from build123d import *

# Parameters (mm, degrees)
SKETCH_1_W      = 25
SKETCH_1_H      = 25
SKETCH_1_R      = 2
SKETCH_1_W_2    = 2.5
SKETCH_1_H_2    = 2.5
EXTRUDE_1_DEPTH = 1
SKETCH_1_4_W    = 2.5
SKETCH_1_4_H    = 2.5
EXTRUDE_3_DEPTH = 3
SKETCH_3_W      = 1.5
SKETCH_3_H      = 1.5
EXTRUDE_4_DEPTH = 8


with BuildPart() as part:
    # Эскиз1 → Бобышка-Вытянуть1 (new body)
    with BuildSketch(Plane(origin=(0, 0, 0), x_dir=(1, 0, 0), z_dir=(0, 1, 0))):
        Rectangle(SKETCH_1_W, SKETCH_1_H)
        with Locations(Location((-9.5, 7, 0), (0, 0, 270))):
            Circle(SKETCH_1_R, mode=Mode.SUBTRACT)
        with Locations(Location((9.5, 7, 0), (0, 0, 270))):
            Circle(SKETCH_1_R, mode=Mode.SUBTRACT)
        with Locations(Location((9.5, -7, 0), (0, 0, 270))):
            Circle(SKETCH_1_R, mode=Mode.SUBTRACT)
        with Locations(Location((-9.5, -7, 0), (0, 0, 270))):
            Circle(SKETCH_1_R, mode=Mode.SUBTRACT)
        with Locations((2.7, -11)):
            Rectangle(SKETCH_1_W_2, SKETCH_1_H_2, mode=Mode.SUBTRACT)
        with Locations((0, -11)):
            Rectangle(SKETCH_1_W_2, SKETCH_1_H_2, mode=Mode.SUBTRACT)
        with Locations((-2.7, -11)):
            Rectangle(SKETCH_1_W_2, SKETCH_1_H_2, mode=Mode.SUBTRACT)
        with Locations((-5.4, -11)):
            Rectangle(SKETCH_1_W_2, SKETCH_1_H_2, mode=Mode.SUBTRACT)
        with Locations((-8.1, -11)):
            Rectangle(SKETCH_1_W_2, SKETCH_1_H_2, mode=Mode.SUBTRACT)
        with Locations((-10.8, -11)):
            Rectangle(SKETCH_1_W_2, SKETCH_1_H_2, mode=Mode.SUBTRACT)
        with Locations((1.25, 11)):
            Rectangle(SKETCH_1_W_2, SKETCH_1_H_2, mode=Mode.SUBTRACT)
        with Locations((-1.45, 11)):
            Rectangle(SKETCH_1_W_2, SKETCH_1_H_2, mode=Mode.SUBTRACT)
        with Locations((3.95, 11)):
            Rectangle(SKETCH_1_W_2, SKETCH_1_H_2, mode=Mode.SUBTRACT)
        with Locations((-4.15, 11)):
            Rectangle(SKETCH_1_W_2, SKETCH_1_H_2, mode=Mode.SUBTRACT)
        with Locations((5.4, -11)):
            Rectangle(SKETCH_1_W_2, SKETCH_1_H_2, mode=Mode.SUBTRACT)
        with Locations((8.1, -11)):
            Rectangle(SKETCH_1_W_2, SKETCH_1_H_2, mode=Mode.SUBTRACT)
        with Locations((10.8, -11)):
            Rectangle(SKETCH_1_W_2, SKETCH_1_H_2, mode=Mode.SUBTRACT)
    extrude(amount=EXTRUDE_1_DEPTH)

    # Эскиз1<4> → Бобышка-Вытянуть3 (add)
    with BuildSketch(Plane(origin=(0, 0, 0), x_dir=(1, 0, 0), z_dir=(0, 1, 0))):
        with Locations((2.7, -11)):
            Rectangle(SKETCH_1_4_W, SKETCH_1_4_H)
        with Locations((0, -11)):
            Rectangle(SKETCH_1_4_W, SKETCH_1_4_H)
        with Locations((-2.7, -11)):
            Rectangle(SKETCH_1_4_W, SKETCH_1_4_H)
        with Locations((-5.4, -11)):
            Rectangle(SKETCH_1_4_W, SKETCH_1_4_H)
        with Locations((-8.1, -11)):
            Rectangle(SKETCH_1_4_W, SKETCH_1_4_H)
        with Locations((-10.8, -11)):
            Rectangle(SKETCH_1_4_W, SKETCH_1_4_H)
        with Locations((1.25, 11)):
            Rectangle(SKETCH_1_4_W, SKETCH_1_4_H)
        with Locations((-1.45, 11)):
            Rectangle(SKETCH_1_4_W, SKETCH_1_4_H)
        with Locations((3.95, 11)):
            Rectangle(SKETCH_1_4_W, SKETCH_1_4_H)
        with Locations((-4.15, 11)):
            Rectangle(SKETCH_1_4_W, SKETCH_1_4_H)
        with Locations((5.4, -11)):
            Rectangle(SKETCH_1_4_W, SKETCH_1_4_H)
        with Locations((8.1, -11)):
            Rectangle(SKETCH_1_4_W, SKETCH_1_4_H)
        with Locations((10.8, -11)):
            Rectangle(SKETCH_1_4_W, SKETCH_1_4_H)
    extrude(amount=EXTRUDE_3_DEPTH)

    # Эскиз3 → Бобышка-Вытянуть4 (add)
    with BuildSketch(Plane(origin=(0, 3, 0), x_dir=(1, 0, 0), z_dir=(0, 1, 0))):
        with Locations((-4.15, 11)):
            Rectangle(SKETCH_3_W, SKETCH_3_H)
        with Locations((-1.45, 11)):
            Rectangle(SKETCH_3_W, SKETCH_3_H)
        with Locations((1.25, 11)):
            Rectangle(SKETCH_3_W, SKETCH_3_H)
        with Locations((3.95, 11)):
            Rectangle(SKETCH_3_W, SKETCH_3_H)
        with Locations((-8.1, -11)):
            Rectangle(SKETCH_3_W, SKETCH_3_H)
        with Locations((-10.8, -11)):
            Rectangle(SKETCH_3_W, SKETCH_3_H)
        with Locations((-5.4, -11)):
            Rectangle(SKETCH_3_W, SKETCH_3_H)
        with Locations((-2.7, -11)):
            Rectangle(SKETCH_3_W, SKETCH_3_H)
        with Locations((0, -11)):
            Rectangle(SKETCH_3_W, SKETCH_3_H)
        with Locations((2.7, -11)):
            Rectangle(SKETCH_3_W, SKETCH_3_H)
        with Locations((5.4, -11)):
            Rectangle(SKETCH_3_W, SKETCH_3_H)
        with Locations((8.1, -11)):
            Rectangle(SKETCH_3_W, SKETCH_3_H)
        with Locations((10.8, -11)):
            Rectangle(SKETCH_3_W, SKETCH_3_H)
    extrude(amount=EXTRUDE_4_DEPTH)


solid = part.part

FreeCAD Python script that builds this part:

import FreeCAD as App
import Part
import Sketcher

V = App.Vector


def add_polygon(sketch, points):
    """Adds a closed chain of lines whose ends are joined by coincident constraints."""
    first, n = sketch.GeometryCount, len(points)
    for a, b in zip(points, points[1:] + points[:1]):
        sketch.addGeometry(Part.LineSegment(App.Vector(*a, 0), App.Vector(*b, 0)), False)
    for i in range(n):
        sketch.addConstraint(Sketcher.Constraint("Coincident", first + i, 2, first + (i + 1) % n, 1))

doc = App.newDocument("Part")
body = doc.addObject("PartDesign::Body", "Body")

# Sketch on XZ plane
sketch1 = doc.addObject("Sketcher::SketchObject", "Sketch")
body.addObject(sketch1)
sketch1.AttachmentSupport = (doc.XZ_Plane, [""])
sketch1.MapMode = "FlatFace"
add_polygon(sketch1, [(-12.5, -12.5), (-12.5, 12.5), (12.5, 12.5), (12.5, -12.5)])  # lines 0-3
add_polygon(sketch1, [(-9.6, 12.2), (-12.1, 12.2), (-12.1, 9.8), (-9.6, 9.8)])  # lines 4-7
add_polygon(sketch1, [(-6.8, 12.2), (-9.3, 12.2), (-9.3, 9.8), (-6.8, 9.8)])  # lines 8-11
sketch1.addGeometry(Part.Circle(V(-9.5, 7, 0), V(0, 0, 1), 2), False)  # 12
add_polygon(sketch1, [(-4.2, 12.2), (-6.7, 12.2), (-6.7, 9.8), (-4.2, 9.8)])  # lines 13-16
add_polygon(sketch1, [(-1.4, 12.2), (-4, 12.2), (-4, 9.8), (-1.4, 9.8)])  # lines 17-20
add_polygon(sketch1, [(1.2, 12.2), (-1.2, 12.2), (-1.2, 9.8), (1.2, 9.8)])  # lines 21-24
add_polygon(sketch1, [(4, 12.2), (1.4, 12.2), (1.4, 9.8), (4, 9.8)])  # lines 25-28
add_polygon(sketch1, [(6.7, 12.2), (4.2, 12.2), (4.2, 9.8), (6.7, 9.8)])  # lines 29-32
add_polygon(sketch1, [(9.3, 12.2), (6.8, 12.2), (6.8, 9.8), (9.3, 9.8)])  # lines 33-36
add_polygon(sketch1, [(12.1, 12.2), (9.6, 12.2), (9.6, 9.8), (12.1, 9.8)])  # lines 37-40
sketch1.addGeometry(Part.Circle(V(9.5, 7, 0), V(0, 0, 1), 2), False)  # 41
sketch1.addGeometry(Part.Circle(V(-9.5, -7, 0), V(0, 0, 1), 2), False)  # 42
add_polygon(sketch1, [(-2.9, -9.8), (-5.4, -9.8), (-5.4, -12.2), (-2.9, -12.2)])  # lines 43-46
add_polygon(sketch1, [(-0.2, -9.8), (-2.7, -9.8), (-2.7, -12.2), (-0.2, -12.2)])  # lines 47-50
add_polygon(sketch1, [(2.5, -9.8), (0, -9.8), (0, -12.2), (2.5, -12.2)])  # lines 51-54
add_polygon(sketch1, [(5.2, -9.8), (2.7, -9.8), (2.7, -12.2), (5.2, -12.2)])  # lines 55-58
sketch1.addGeometry(Part.Circle(V(9.5, -7, 0), V(0, 0, 1), 2), False)  # 59
sketch1.addConstraint(Sketcher.Constraint("Vertical", 0))
sketch1.addConstraint(Sketcher.Constraint("Horizontal", 1))
sketch1.addConstraint(Sketcher.Constraint("Vertical", 2))
sketch1.addConstraint(Sketcher.Constraint("Horizontal", 3))
sketch1.addConstraint(Sketcher.Constraint("Horizontal", 4))
sketch1.addConstraint(Sketcher.Constraint("Vertical", 5))
sketch1.addConstraint(Sketcher.Constraint("Horizontal", 6))
sketch1.addConstraint(Sketcher.Constraint("Vertical", 7))
sketch1.addConstraint(Sketcher.Constraint("Horizontal", 8))
sketch1.addConstraint(Sketcher.Constraint("Vertical", 9))
sketch1.addConstraint(Sketcher.Constraint("Horizontal", 10))
sketch1.addConstraint(Sketcher.Constraint("Vertical", 11))
sketch1.addConstraint(Sketcher.Constraint("Horizontal", 13))
sketch1.addConstraint(Sketcher.Constraint("Vertical", 14))
sketch1.addConstraint(Sketcher.Constraint("Horizontal", 15))
sketch1.addConstraint(Sketcher.Constraint("Vertical", 16))
sketch1.addConstraint(Sketcher.Constraint("Horizontal", 17))
sketch1.addConstraint(Sketcher.Constraint("Vertical", 18))
sketch1.addConstraint(Sketcher.Constraint("Horizontal", 19))
sketch1.addConstraint(Sketcher.Constraint("Vertical", 20))
sketch1.addConstraint(Sketcher.Constraint("Horizontal", 21))
sketch1.addConstraint(Sketcher.Constraint("Vertical", 22))
sketch1.addConstraint(Sketcher.Constraint("Horizontal", 23))
sketch1.addConstraint(Sketcher.Constraint("Vertical", 24))
sketch1.addConstraint(Sketcher.Constraint("Horizontal", 25))
sketch1.addConstraint(Sketcher.Constraint("Vertical", 26))
sketch1.addConstraint(Sketcher.Constraint("Horizontal", 27))
sketch1.addConstraint(Sketcher.Constraint("Vertical", 28))
sketch1.addConstraint(Sketcher.Constraint("Horizontal", 29))
sketch1.addConstraint(Sketcher.Constraint("Vertical", 30))
sketch1.addConstraint(Sketcher.Constraint("Horizontal", 31))
sketch1.addConstraint(Sketcher.Constraint("Vertical", 32))
sketch1.addConstraint(Sketcher.Constraint("Horizontal", 33))
sketch1.addConstraint(Sketcher.Constraint("Vertical", 34))
sketch1.addConstraint(Sketcher.Constraint("Horizontal", 35))
sketch1.addConstraint(Sketcher.Constraint("Vertical", 36))
sketch1.addConstraint(Sketcher.Constraint("Horizontal", 37))
sketch1.addConstraint(Sketcher.Constraint("Vertical", 38))
sketch1.addConstraint(Sketcher.Constraint("Horizontal", 39))
sketch1.addConstraint(Sketcher.Constraint("Vertical", 40))
sketch1.addConstraint(Sketcher.Constraint("Horizontal", 43))
sketch1.addConstraint(Sketcher.Constraint("Vertical", 44))
sketch1.addConstraint(Sketcher.Constraint("Horizontal", 45))
sketch1.addConstraint(Sketcher.Constraint("Vertical", 46))
sketch1.addConstraint(Sketcher.Constraint("Horizontal", 47))
sketch1.addConstraint(Sketcher.Constraint("Vertical", 48))
sketch1.addConstraint(Sketcher.Constraint("Horizontal", 49))
sketch1.addConstraint(Sketcher.Constraint("Vertical", 50))
sketch1.addConstraint(Sketcher.Constraint("Horizontal", 51))
sketch1.addConstraint(Sketcher.Constraint("Vertical", 52))
sketch1.addConstraint(Sketcher.Constraint("Horizontal", 53))
sketch1.addConstraint(Sketcher.Constraint("Vertical", 54))
sketch1.addConstraint(Sketcher.Constraint("Horizontal", 55))
sketch1.addConstraint(Sketcher.Constraint("Vertical", 56))
sketch1.addConstraint(Sketcher.Constraint("Horizontal", 57))
sketch1.addConstraint(Sketcher.Constraint("Vertical", 58))
sketch1.addConstraint(Sketcher.Constraint("Equal", 12, 41))
sketch1.addConstraint(Sketcher.Constraint("Equal", 41, 42))
sketch1.addConstraint(Sketcher.Constraint("Equal", 42, 59))
sketch1.addConstraint(Sketcher.Constraint("Symmetric", 41, 3, 42, 3, -1, 1))
sketch1.addConstraint(Sketcher.Constraint("Symmetric", 12, 3, 59, 3, -1, 1))
sketch1.addConstraint(Sketcher.Constraint("Symmetric", 0, 2, 2, 2, -1, 1))
sketch1.addConstraint(Sketcher.Constraint("Symmetric", 12, 3, 41, 3, -2))
sketch1.addConstraint(Sketcher.Constraint("Symmetric", 20, 2, 25, 2, -2))
sketch1.addConstraint(Sketcher.Constraint("Symmetric", 18, 2, 27, 2, -2))
sketch1.addConstraint(Sketcher.Constraint("Symmetric", 16, 2, 29, 2, -2))
sketch1.addConstraint(Sketcher.Constraint("Symmetric", 14, 2, 31, 2, -2))
sketch1.addConstraint(Sketcher.Constraint("Symmetric", 11, 2, 33, 2, -2))
sketch1.addConstraint(Sketcher.Constraint("Symmetric", 9, 2, 35, 2, -2))
sketch1.addConstraint(Sketcher.Constraint("Symmetric", 7, 2, 37, 2, -2))
sketch1.addConstraint(Sketcher.Constraint("Symmetric", 5, 2, 39, 2, -2))
sketch1.addConstraint(Sketcher.Constraint("Symmetric", 47, 2, 55, 2, -2))
sketch1.addConstraint(Sketcher.Constraint("PointOnObject", 51, 2, -2))
sketch1.addConstraint(Sketcher.Constraint("Horizontal", 7, 2, 8, 2))
sketch1.addConstraint(Sketcher.Constraint("Horizontal", 6, 2, 9, 2))
sketch1.addConstraint(Sketcher.Constraint("Horizontal", 11, 2, 13, 2))
sketch1.addConstraint(Sketcher.Constraint("Horizontal", 10, 2, 14, 2))
sketch1.addConstraint(Sketcher.Constraint("Horizontal", 16, 2, 17, 2))
sketch1.addConstraint(Sketcher.Constraint("Horizontal", 15, 2, 18, 2))
sketch1.addConstraint(Sketcher.Constraint("Horizontal", 20, 2, 21, 2))
sketch1.addConstraint(Sketcher.Constraint("Horizontal", 19, 2, 22, 2))
sketch1.addConstraint(Sketcher.Constraint("Horizontal", 46, 2, 47, 2))
sketch1.addConstraint(Sketcher.Constraint("Horizontal", 45, 2, 48, 2))
sketch1.addConstraint(Sketcher.Constraint("Horizontal", 50, 2, 51, 2))
sketch1.addConstraint(Sketcher.Constraint("Horizontal", 49, 2, 52, 2))
sketch1.addConstraint(Sketcher.Constraint("Horizontal", 53, 2, 56, 2))
sketch1.addConstraint(Sketcher.Constraint("Equal", 6, 8))
sketch1.addConstraint(Sketcher.Constraint("Equal", 10, 13))
sketch1.addConstraint(Sketcher.Constraint("Equal", 15, 17))
sketch1.addConstraint(Sketcher.Constraint("Equal", 19, 21))
sketch1.addConstraint(Sketcher.Constraint("Equal", 39, 43))
sketch1.addConstraint(Sketcher.Constraint("Equal", 45, 47))
sketch1.addConstraint(Sketcher.Constraint("Equal", 49, 51))
sketch1.addConstraint(Sketcher.Constraint("Equal", 53, 55))
sketch1.addConstraint(Sketcher.Constraint("Equal", 3, 0))
sketch1.addConstraint(Sketcher.Constraint("Equal", 57, 5))
sketch1.addConstraint(Sketcher.Constraint("Equal", 40, 44))
sketch1.addConstraint(Sketcher.Constraint("Diameter", 12, 4.0))
sketch1.addConstraint(Sketcher.Constraint("DistanceX", 1, 1, 1, 2, 25.0))
sketch1.addConstraint(Sketcher.Constraint("DistanceX", 4, 2, 4, 1, 2.5))
sketch1.addConstraint(Sketcher.Constraint("DistanceY", -1, 1, 12, 3, 7.0))
sketch1.addConstraint(Sketcher.Constraint("DistanceX", 12, 3, 41, 3, 19.0))
sketch1.addConstraint(Sketcher.Constraint("DistanceX", 43, 2, -1, 1, 5.4))
sketch1.addConstraint(Sketcher.Constraint("DistanceX", 47, 2, -1, 1, 2.7))
sketch1.addConstraint(Sketcher.Constraint("DistanceX", 7, 2, 8, 2, 0.2))
sketch1.addConstraint(Sketcher.Constraint("DistanceX", 11, 2, 13, 2, 0.2))
sketch1.addConstraint(Sketcher.Constraint("DistanceX", 16, 2, 17, 2, 0.2))
sketch1.addConstraint(Sketcher.Constraint("DistanceX", 20, 2, 21, 2, 0.2))
sketch1.addConstraint(Sketcher.Constraint("DistanceX", 24, 2, 25, 2, 0.2))
sketch1.addConstraint(Sketcher.Constraint("DistanceY", -1, 1, 4, 2, 12.25))
sketch1.addConstraint(Sketcher.Constraint("DistanceY", 43, 2, -1, 1, 9.75))
pad1 = doc.addObject("PartDesign::Pad", "Pad")
body.addObject(pad1)
pad1.Profile = sketch1
pad1.Length = 1
pad1.Reversed = True

# Sketch on XZ plane
sketch2 = doc.addObject("Sketcher::SketchObject", "Sketch001")
body.addObject(sketch2)
sketch2.AttachmentSupport = (doc.XZ_Plane, [""])
sketch2.MapMode = "FlatFace"
add_polygon(sketch2, [(1.4, 9.8), (1.4, 12.2), (4, 12.2), (4, 9.8)])  # lines 0-3
add_polygon(sketch2, [(-1.2, 9.8), (-1.2, 12.2), (1.2, 12.2), (1.2, 9.8)])  # lines 4-7
add_polygon(sketch2, [(-4, 9.8), (-4, 12.2), (-1.4, 12.2), (-1.4, 9.8)])  # lines 8-11
add_polygon(sketch2, [(-6.7, 9.8), (-6.7, 12.2), (-4.2, 12.2), (-4.2, 9.8)])  # lines 12-15
add_polygon(sketch2, [(-9.3, 9.8), (-9.3, 12.2), (-6.8, 12.2), (-6.8, 9.8)])  # lines 16-19
add_polygon(sketch2, [(-12.1, 9.8), (-12.1, 12.2), (-9.6, 12.2), (-9.6, 9.8)])  # lines 20-23
add_polygon(sketch2, [(0, -12.2), (0, -9.8), (2.5, -9.8), (2.5, -12.2)])  # lines 24-27
add_polygon(sketch2, [(-2.7, -12.2), (-2.7, -9.8), (-0.2, -9.8), (-0.2, -12.2)])  # lines 28-31
add_polygon(sketch2, [(2.7, -12.2), (2.7, -9.8), (5.2, -9.8), (5.2, -12.2)])  # lines 32-35
add_polygon(sketch2, [(-5.4, -12.2), (-5.4, -9.8), (-2.9, -9.8), (-2.9, -12.2)])  # lines 36-39
add_polygon(sketch2, [(4.2, 9.8), (4.2, 12.2), (6.7, 12.2), (6.7, 9.8)])  # lines 40-43
add_polygon(sketch2, [(6.8, 9.8), (6.8, 12.2), (9.3, 12.2), (9.3, 9.8)])  # lines 44-47
add_polygon(sketch2, [(9.6, 9.8), (9.6, 12.2), (12.1, 12.2), (12.1, 9.8)])  # lines 48-51
sketch2.addConstraint(Sketcher.Constraint("Vertical", 0))
sketch2.addConstraint(Sketcher.Constraint("Horizontal", 1))
sketch2.addConstraint(Sketcher.Constraint("Vertical", 2))
sketch2.addConstraint(Sketcher.Constraint("Horizontal", 3))
sketch2.addConstraint(Sketcher.Constraint("Vertical", 4))
sketch2.addConstraint(Sketcher.Constraint("Horizontal", 5))
sketch2.addConstraint(Sketcher.Constraint("Vertical", 6))
sketch2.addConstraint(Sketcher.Constraint("Horizontal", 7))
sketch2.addConstraint(Sketcher.Constraint("Vertical", 8))
sketch2.addConstraint(Sketcher.Constraint("Horizontal", 9))
sketch2.addConstraint(Sketcher.Constraint("Vertical", 10))
sketch2.addConstraint(Sketcher.Constraint("Horizontal", 11))
sketch2.addConstraint(Sketcher.Constraint("Vertical", 12))
sketch2.addConstraint(Sketcher.Constraint("Horizontal", 13))
sketch2.addConstraint(Sketcher.Constraint("Vertical", 14))
sketch2.addConstraint(Sketcher.Constraint("Horizontal", 15))
sketch2.addConstraint(Sketcher.Constraint("Vertical", 16))
sketch2.addConstraint(Sketcher.Constraint("Horizontal", 17))
sketch2.addConstraint(Sketcher.Constraint("Vertical", 18))
sketch2.addConstraint(Sketcher.Constraint("Horizontal", 19))
sketch2.addConstraint(Sketcher.Constraint("Vertical", 20))
sketch2.addConstraint(Sketcher.Constraint("Horizontal", 21))
sketch2.addConstraint(Sketcher.Constraint("Vertical", 22))
sketch2.addConstraint(Sketcher.Constraint("Horizontal", 23))
sketch2.addConstraint(Sketcher.Constraint("Vertical", 24))
sketch2.addConstraint(Sketcher.Constraint("Horizontal", 25))
sketch2.addConstraint(Sketcher.Constraint("Vertical", 26))
sketch2.addConstraint(Sketcher.Constraint("Horizontal", 27))
sketch2.addConstraint(Sketcher.Constraint("Vertical", 28))
sketch2.addConstraint(Sketcher.Constraint("Horizontal", 29))
sketch2.addConstraint(Sketcher.Constraint("Vertical", 30))
sketch2.addConstraint(Sketcher.Constraint("Horizontal", 31))
sketch2.addConstraint(Sketcher.Constraint("Vertical", 32))
sketch2.addConstraint(Sketcher.Constraint("Horizontal", 33))
sketch2.addConstraint(Sketcher.Constraint("Vertical", 34))
sketch2.addConstraint(Sketcher.Constraint("Horizontal", 35))
sketch2.addConstraint(Sketcher.Constraint("Vertical", 36))
sketch2.addConstraint(Sketcher.Constraint("Horizontal", 37))
sketch2.addConstraint(Sketcher.Constraint("Vertical", 38))
sketch2.addConstraint(Sketcher.Constraint("Horizontal", 39))
sketch2.addConstraint(Sketcher.Constraint("Vertical", 40))
sketch2.addConstraint(Sketcher.Constraint("Horizontal", 41))
sketch2.addConstraint(Sketcher.Constraint("Vertical", 42))
sketch2.addConstraint(Sketcher.Constraint("Horizontal", 43))
sketch2.addConstraint(Sketcher.Constraint("Vertical", 44))
sketch2.addConstraint(Sketcher.Constraint("Horizontal", 45))
sketch2.addConstraint(Sketcher.Constraint("Vertical", 46))
sketch2.addConstraint(Sketcher.Constraint("Horizontal", 47))
sketch2.addConstraint(Sketcher.Constraint("Vertical", 48))
sketch2.addConstraint(Sketcher.Constraint("Horizontal", 49))
sketch2.addConstraint(Sketcher.Constraint("Vertical", 50))
sketch2.addConstraint(Sketcher.Constraint("Horizontal", 51))
sketch2.addConstraint(Sketcher.Constraint("Symmetric", 1, 2, 8, 2, -2))
sketch2.addConstraint(Sketcher.Constraint("Symmetric", 3, 2, 10, 2, -2))
sketch2.addConstraint(Sketcher.Constraint("Symmetric", 28, 2, 32, 2, -2))
sketch2.addConstraint(Sketcher.Constraint("Symmetric", 13, 2, 40, 2, -2))
sketch2.addConstraint(Sketcher.Constraint("Symmetric", 15, 2, 42, 2, -2))
sketch2.addConstraint(Sketcher.Constraint("Symmetric", 17, 2, 44, 2, -2))
sketch2.addConstraint(Sketcher.Constraint("Symmetric", 19, 2, 46, 2, -2))
sketch2.addConstraint(Sketcher.Constraint("Symmetric", 21, 2, 48, 2, -2))
sketch2.addConstraint(Sketcher.Constraint("Symmetric", 23, 2, 50, 2, -2))
sketch2.addConstraint(Sketcher.Constraint("PointOnObject", 24, 2, -2))
sketch2.addConstraint(Sketcher.Constraint("Horizontal", 1, 2, 4, 2))
sketch2.addConstraint(Sketcher.Constraint("Horizontal", 3, 2, 6, 2))
sketch2.addConstraint(Sketcher.Constraint("Horizontal", 9, 2, 12, 2))
sketch2.addConstraint(Sketcher.Constraint("Horizontal", 11, 2, 14, 2))
sketch2.addConstraint(Sketcher.Constraint("Horizontal", 13, 2, 16, 2))
sketch2.addConstraint(Sketcher.Constraint("Horizontal", 15, 2, 18, 2))
sketch2.addConstraint(Sketcher.Constraint("Horizontal", 17, 2, 20, 2))
sketch2.addConstraint(Sketcher.Constraint("Horizontal", 19, 2, 22, 2))
sketch2.addConstraint(Sketcher.Constraint("Horizontal", 25, 2, 28, 2))
sketch2.addConstraint(Sketcher.Constraint("Horizontal", 27, 2, 30, 2))
sketch2.addConstraint(Sketcher.Constraint("Horizontal", 31, 2, 34, 2))
sketch2.addConstraint(Sketcher.Constraint("Horizontal", 33, 2, 36, 2))
sketch2.addConstraint(Sketcher.Constraint("Horizontal", 35, 2, 38, 2))
sketch2.addConstraint(Sketcher.Constraint("Equal", 3, 5))
sketch2.addConstraint(Sketcher.Constraint("Equal", 11, 13))
sketch2.addConstraint(Sketcher.Constraint("Equal", 15, 17))
sketch2.addConstraint(Sketcher.Constraint("Equal", 19, 21))
sketch2.addConstraint(Sketcher.Constraint("Equal", 23, 25))
sketch2.addConstraint(Sketcher.Constraint("Equal", 27, 29))
sketch2.addConstraint(Sketcher.Constraint("Equal", 31, 33))
sketch2.addConstraint(Sketcher.Constraint("Equal", 35, 37))
sketch2.addConstraint(Sketcher.Constraint("Equal", 51, 0))
sketch2.addConstraint(Sketcher.Constraint("Equal", 22, 24))
sketch2.addConstraint(Sketcher.Constraint("DistanceX", 1, 1, 1, 2, 2.5))
sketch2.addConstraint(Sketcher.Constraint("DistanceY", 26, 2, 3, 2, 22.0))
sketch2.addConstraint(Sketcher.Constraint("DistanceX", 28, 2, -1, 1, 2.7))
sketch2.addConstraint(Sketcher.Constraint("DistanceX", 36, 2, -1, 1, 5.4))
sketch2.addConstraint(Sketcher.Constraint("DistanceX", 4, 2, 0, 2, 2.7))
sketch2.addConstraint(Sketcher.Constraint("DistanceX", 8, 2, 4, 2, 2.7))
sketch2.addConstraint(Sketcher.Constraint("DistanceX", 12, 2, 8, 2, 2.7))
sketch2.addConstraint(Sketcher.Constraint("DistanceX", 16, 2, 12, 2, 2.7))
sketch2.addConstraint(Sketcher.Constraint("DistanceX", 20, 2, 16, 2, 2.7))
sketch2.addConstraint(Sketcher.Constraint("DistanceY", -1, 1, 0, 2, 12.25))
pad2 = doc.addObject("PartDesign::Pad", "Pad001")
body.addObject(pad2)
pad2.Profile = sketch2
pad2.Length = 3
pad2.Reversed = True

# Sketch on XZ plane
sketch3 = doc.addObject("Sketcher::SketchObject", "Sketch002")
body.addObject(sketch3)
sketch3.AttachmentSupport = (doc.XZ_Plane, [""])
sketch3.MapMode = "FlatFace"
sketch3.AttachmentOffset = App.Placement(V(0, 0, -3), App.Rotation())
add_polygon(sketch3, [(-4.9, -11.8), (-4.9, -10.2), (-3.4, -10.2), (-3.4, -11.8)])  # lines 0-3
add_polygon(sketch3, [(-2.2, -11.8), (-2.2, -10.2), (-0.7, -10.2), (-0.7, -11.8)])  # lines 4-7
add_polygon(sketch3, [(0.5, -11.8), (0.5, -10.2), (2, -10.2), (2, -11.8)])  # lines 8-11
add_polygon(sketch3, [(3.2, -11.8), (3.2, -10.2), (4.7, -10.2), (4.7, -11.8)])  # lines 12-15
add_polygon(sketch3, [(-8.8, 10.2), (-8.8, 11.8), (-7.3, 11.8), (-7.3, 10.2)])  # lines 16-19
add_polygon(sketch3, [(-11.6, 10.2), (-11.6, 11.8), (-10.1, 11.8), (-10.1, 10.2)])  # lines 20-23
add_polygon(sketch3, [(-6.2, 10.2), (-6.2, 11.8), (-4.7, 11.8), (-4.7, 10.2)])  # lines 24-27
add_polygon(sketch3, [(-3.5, 10.2), (-3.5, 11.8), (-1.9, 11.8), (-1.9, 10.2)])  # lines 28-31
add_polygon(sketch3, [(-0.8, 10.2), (-0.8, 11.8), (0.8, 11.8), (0.8, 10.2)])  # lines 32-35
add_polygon(sketch3, [(1.9, 10.2), (1.9, 11.8), (3.5, 11.8), (3.5, 10.2)])  # lines 36-39
add_polygon(sketch3, [(4.7, 10.2), (4.7, 11.8), (6.2, 11.8), (6.2, 10.2)])  # lines 40-43
add_polygon(sketch3, [(7.3, 10.2), (7.3, 11.8), (8.8, 11.8), (8.8, 10.2)])  # lines 44-47
add_polygon(sketch3, [(10.1, 10.2), (10.1, 11.8), (11.6, 11.8), (11.6, 10.2)])  # lines 48-51
sketch3.addConstraint(Sketcher.Constraint("Vertical", 0))
sketch3.addConstraint(Sketcher.Constraint("Horizontal", 1))
sketch3.addConstraint(Sketcher.Constraint("Vertical", 2))
sketch3.addConstraint(Sketcher.Constraint("Horizontal", 3))
sketch3.addConstraint(Sketcher.Constraint("Vertical", 4))
sketch3.addConstraint(Sketcher.Constraint("Horizontal", 5))
sketch3.addConstraint(Sketcher.Constraint("Vertical", 6))
sketch3.addConstraint(Sketcher.Constraint("Horizontal", 7))
sketch3.addConstraint(Sketcher.Constraint("Vertical", 8))
sketch3.addConstraint(Sketcher.Constraint("Horizontal", 9))
sketch3.addConstraint(Sketcher.Constraint("Vertical", 10))
sketch3.addConstraint(Sketcher.Constraint("Horizontal", 11))
sketch3.addConstraint(Sketcher.Constraint("Vertical", 12))
sketch3.addConstraint(Sketcher.Constraint("Horizontal", 13))
sketch3.addConstraint(Sketcher.Constraint("Vertical", 14))
sketch3.addConstraint(Sketcher.Constraint("Horizontal", 15))
sketch3.addConstraint(Sketcher.Constraint("Vertical", 16))
sketch3.addConstraint(Sketcher.Constraint("Horizontal", 17))
sketch3.addConstraint(Sketcher.Constraint("Vertical", 18))
sketch3.addConstraint(Sketcher.Constraint("Horizontal", 19))
sketch3.addConstraint(Sketcher.Constraint("Vertical", 20))
sketch3.addConstraint(Sketcher.Constraint("Horizontal", 21))
sketch3.addConstraint(Sketcher.Constraint("Vertical", 22))
sketch3.addConstraint(Sketcher.Constraint("Horizontal", 23))
sketch3.addConstraint(Sketcher.Constraint("Vertical", 24))
sketch3.addConstraint(Sketcher.Constraint("Horizontal", 25))
sketch3.addConstraint(Sketcher.Constraint("Vertical", 26))
sketch3.addConstraint(Sketcher.Constraint("Horizontal", 27))
sketch3.addConstraint(Sketcher.Constraint("Vertical", 28))
sketch3.addConstraint(Sketcher.Constraint("Horizontal", 29))
sketch3.addConstraint(Sketcher.Constraint("Vertical", 30))
sketch3.addConstraint(Sketcher.Constraint("Horizontal", 31))
sketch3.addConstraint(Sketcher.Constraint("Vertical", 32))
sketch3.addConstraint(Sketcher.Constraint("Horizontal", 33))
sketch3.addConstraint(Sketcher.Constraint("Vertical", 34))
sketch3.addConstraint(Sketcher.Constraint("Horizontal", 35))
sketch3.addConstraint(Sketcher.Constraint("Vertical", 36))
sketch3.addConstraint(Sketcher.Constraint("Horizontal", 37))
sketch3.addConstraint(Sketcher.Constraint("Vertical", 38))
sketch3.addConstraint(Sketcher.Constraint("Horizontal", 39))
sketch3.addConstraint(Sketcher.Constraint("Vertical", 40))
sketch3.addConstraint(Sketcher.Constraint("Horizontal", 41))
sketch3.addConstraint(Sketcher.Constraint("Vertical", 42))
sketch3.addConstraint(Sketcher.Constraint("Horizontal", 43))
sketch3.addConstraint(Sketcher.Constraint("Vertical", 44))
sketch3.addConstraint(Sketcher.Constraint("Horizontal", 45))
sketch3.addConstraint(Sketcher.Constraint("Vertical", 46))
sketch3.addConstraint(Sketcher.Constraint("Horizontal", 47))
sketch3.addConstraint(Sketcher.Constraint("Vertical", 48))
sketch3.addConstraint(Sketcher.Constraint("Horizontal", 49))
sketch3.addConstraint(Sketcher.Constraint("Vertical", 50))
sketch3.addConstraint(Sketcher.Constraint("Horizontal", 51))
sketch3.addConstraint(Sketcher.Constraint("Symmetric", 29, 2, 36, 2, -2))
sketch3.addConstraint(Sketcher.Constraint("Symmetric", 31, 2, 38, 2, -2))
sketch3.addConstraint(Sketcher.Constraint("Symmetric", 25, 2, 40, 2, -2))
sketch3.addConstraint(Sketcher.Constraint("Symmetric", 27, 2, 42, 2, -2))
sketch3.addConstraint(Sketcher.Constraint("Symmetric", 17, 2, 44, 2, -2))
sketch3.addConstraint(Sketcher.Constraint("Symmetric", 19, 2, 46, 2, -2))
sketch3.addConstraint(Sketcher.Constraint("Symmetric", 21, 2, 48, 2, -2))
sketch3.addConstraint(Sketcher.Constraint("Symmetric", 23, 2, 50, 2, -2))
sketch3.addConstraint(Sketcher.Constraint("Horizontal", 1, 2, 4, 2))
sketch3.addConstraint(Sketcher.Constraint("Horizontal", 3, 2, 6, 2))
sketch3.addConstraint(Sketcher.Constraint("Horizontal", 5, 2, 8, 2))
sketch3.addConstraint(Sketcher.Constraint("Horizontal", 7, 2, 10, 2))
sketch3.addConstraint(Sketcher.Constraint("Horizontal", 9, 2, 12, 2))
sketch3.addConstraint(Sketcher.Constraint("Horizontal", 11, 2, 14, 2))
sketch3.addConstraint(Sketcher.Constraint("Horizontal", 17, 2, 20, 2))
sketch3.addConstraint(Sketcher.Constraint("Horizontal", 19, 2, 22, 2))
sketch3.addConstraint(Sketcher.Constraint("Horizontal", 21, 2, 24, 2))
sketch3.addConstraint(Sketcher.Constraint("Horizontal", 23, 2, 26, 2))
sketch3.addConstraint(Sketcher.Constraint("Horizontal", 25, 2, 28, 2))
sketch3.addConstraint(Sketcher.Constraint("Horizontal", 27, 2, 30, 2))
sketch3.addConstraint(Sketcher.Constraint("Horizontal", 29, 2, 32, 2))
sketch3.addConstraint(Sketcher.Constraint("Horizontal", 31, 2, 34, 2))
sketch3.addConstraint(Sketcher.Constraint("Equal", 3, 5))
sketch3.addConstraint(Sketcher.Constraint("Equal", 7, 9))
sketch3.addConstraint(Sketcher.Constraint("Equal", 11, 13))
sketch3.addConstraint(Sketcher.Constraint("Equal", 15, 17))
sketch3.addConstraint(Sketcher.Constraint("Equal", 19, 21))
sketch3.addConstraint(Sketcher.Constraint("Equal", 23, 25))
sketch3.addConstraint(Sketcher.Constraint("Equal", 27, 29))
sketch3.addConstraint(Sketcher.Constraint("Equal", 31, 33))
sketch3.addConstraint(Sketcher.Constraint("Equal", 51, 0))
sketch3.addConstraint(Sketcher.Constraint("Equal", 14, 16))
sketch3.addConstraint(Sketcher.Constraint("DistanceX", 1, 1, 1, 2, 1.5))
sketch3.addConstraint(Sketcher.Constraint("DistanceX", -1, 1, 9, 2, 2.0))
sketch3.addConstraint(Sketcher.Constraint("DistanceY", 0, 2, 16, 2, 22.0))
sketch3.addConstraint(Sketcher.Constraint("DistanceX", 0, 2, -1, 1, 4.9))
sketch3.addConstraint(Sketcher.Constraint("DistanceX", 4, 2, -1, 1, 2.2))
sketch3.addConstraint(Sketcher.Constraint("DistanceX", -1, 1, 12, 2, 3.2))
sketch3.addConstraint(Sketcher.Constraint("DistanceX", 20, 2, 16, 2, 2.7))
sketch3.addConstraint(Sketcher.Constraint("DistanceX", 17, 2, 24, 2, 1.2))
sketch3.addConstraint(Sketcher.Constraint("DistanceX", 25, 2, 28, 2, 1.2))
sketch3.addConstraint(Sketcher.Constraint("DistanceX", 29, 2, 32, 2, 1.2))
sketch3.addConstraint(Sketcher.Constraint("DistanceX", 33, 2, 36, 2, 1.2))
sketch3.addConstraint(Sketcher.Constraint("DistanceY", 0, 2, -1, 1, 10.25))
pad3 = doc.addObject("PartDesign::Pad", "Pad002")
body.addObject(pad3)
pad3.Profile = sketch3
pad3.Length = 8
pad3.Reversed = True

doc.recompute()
